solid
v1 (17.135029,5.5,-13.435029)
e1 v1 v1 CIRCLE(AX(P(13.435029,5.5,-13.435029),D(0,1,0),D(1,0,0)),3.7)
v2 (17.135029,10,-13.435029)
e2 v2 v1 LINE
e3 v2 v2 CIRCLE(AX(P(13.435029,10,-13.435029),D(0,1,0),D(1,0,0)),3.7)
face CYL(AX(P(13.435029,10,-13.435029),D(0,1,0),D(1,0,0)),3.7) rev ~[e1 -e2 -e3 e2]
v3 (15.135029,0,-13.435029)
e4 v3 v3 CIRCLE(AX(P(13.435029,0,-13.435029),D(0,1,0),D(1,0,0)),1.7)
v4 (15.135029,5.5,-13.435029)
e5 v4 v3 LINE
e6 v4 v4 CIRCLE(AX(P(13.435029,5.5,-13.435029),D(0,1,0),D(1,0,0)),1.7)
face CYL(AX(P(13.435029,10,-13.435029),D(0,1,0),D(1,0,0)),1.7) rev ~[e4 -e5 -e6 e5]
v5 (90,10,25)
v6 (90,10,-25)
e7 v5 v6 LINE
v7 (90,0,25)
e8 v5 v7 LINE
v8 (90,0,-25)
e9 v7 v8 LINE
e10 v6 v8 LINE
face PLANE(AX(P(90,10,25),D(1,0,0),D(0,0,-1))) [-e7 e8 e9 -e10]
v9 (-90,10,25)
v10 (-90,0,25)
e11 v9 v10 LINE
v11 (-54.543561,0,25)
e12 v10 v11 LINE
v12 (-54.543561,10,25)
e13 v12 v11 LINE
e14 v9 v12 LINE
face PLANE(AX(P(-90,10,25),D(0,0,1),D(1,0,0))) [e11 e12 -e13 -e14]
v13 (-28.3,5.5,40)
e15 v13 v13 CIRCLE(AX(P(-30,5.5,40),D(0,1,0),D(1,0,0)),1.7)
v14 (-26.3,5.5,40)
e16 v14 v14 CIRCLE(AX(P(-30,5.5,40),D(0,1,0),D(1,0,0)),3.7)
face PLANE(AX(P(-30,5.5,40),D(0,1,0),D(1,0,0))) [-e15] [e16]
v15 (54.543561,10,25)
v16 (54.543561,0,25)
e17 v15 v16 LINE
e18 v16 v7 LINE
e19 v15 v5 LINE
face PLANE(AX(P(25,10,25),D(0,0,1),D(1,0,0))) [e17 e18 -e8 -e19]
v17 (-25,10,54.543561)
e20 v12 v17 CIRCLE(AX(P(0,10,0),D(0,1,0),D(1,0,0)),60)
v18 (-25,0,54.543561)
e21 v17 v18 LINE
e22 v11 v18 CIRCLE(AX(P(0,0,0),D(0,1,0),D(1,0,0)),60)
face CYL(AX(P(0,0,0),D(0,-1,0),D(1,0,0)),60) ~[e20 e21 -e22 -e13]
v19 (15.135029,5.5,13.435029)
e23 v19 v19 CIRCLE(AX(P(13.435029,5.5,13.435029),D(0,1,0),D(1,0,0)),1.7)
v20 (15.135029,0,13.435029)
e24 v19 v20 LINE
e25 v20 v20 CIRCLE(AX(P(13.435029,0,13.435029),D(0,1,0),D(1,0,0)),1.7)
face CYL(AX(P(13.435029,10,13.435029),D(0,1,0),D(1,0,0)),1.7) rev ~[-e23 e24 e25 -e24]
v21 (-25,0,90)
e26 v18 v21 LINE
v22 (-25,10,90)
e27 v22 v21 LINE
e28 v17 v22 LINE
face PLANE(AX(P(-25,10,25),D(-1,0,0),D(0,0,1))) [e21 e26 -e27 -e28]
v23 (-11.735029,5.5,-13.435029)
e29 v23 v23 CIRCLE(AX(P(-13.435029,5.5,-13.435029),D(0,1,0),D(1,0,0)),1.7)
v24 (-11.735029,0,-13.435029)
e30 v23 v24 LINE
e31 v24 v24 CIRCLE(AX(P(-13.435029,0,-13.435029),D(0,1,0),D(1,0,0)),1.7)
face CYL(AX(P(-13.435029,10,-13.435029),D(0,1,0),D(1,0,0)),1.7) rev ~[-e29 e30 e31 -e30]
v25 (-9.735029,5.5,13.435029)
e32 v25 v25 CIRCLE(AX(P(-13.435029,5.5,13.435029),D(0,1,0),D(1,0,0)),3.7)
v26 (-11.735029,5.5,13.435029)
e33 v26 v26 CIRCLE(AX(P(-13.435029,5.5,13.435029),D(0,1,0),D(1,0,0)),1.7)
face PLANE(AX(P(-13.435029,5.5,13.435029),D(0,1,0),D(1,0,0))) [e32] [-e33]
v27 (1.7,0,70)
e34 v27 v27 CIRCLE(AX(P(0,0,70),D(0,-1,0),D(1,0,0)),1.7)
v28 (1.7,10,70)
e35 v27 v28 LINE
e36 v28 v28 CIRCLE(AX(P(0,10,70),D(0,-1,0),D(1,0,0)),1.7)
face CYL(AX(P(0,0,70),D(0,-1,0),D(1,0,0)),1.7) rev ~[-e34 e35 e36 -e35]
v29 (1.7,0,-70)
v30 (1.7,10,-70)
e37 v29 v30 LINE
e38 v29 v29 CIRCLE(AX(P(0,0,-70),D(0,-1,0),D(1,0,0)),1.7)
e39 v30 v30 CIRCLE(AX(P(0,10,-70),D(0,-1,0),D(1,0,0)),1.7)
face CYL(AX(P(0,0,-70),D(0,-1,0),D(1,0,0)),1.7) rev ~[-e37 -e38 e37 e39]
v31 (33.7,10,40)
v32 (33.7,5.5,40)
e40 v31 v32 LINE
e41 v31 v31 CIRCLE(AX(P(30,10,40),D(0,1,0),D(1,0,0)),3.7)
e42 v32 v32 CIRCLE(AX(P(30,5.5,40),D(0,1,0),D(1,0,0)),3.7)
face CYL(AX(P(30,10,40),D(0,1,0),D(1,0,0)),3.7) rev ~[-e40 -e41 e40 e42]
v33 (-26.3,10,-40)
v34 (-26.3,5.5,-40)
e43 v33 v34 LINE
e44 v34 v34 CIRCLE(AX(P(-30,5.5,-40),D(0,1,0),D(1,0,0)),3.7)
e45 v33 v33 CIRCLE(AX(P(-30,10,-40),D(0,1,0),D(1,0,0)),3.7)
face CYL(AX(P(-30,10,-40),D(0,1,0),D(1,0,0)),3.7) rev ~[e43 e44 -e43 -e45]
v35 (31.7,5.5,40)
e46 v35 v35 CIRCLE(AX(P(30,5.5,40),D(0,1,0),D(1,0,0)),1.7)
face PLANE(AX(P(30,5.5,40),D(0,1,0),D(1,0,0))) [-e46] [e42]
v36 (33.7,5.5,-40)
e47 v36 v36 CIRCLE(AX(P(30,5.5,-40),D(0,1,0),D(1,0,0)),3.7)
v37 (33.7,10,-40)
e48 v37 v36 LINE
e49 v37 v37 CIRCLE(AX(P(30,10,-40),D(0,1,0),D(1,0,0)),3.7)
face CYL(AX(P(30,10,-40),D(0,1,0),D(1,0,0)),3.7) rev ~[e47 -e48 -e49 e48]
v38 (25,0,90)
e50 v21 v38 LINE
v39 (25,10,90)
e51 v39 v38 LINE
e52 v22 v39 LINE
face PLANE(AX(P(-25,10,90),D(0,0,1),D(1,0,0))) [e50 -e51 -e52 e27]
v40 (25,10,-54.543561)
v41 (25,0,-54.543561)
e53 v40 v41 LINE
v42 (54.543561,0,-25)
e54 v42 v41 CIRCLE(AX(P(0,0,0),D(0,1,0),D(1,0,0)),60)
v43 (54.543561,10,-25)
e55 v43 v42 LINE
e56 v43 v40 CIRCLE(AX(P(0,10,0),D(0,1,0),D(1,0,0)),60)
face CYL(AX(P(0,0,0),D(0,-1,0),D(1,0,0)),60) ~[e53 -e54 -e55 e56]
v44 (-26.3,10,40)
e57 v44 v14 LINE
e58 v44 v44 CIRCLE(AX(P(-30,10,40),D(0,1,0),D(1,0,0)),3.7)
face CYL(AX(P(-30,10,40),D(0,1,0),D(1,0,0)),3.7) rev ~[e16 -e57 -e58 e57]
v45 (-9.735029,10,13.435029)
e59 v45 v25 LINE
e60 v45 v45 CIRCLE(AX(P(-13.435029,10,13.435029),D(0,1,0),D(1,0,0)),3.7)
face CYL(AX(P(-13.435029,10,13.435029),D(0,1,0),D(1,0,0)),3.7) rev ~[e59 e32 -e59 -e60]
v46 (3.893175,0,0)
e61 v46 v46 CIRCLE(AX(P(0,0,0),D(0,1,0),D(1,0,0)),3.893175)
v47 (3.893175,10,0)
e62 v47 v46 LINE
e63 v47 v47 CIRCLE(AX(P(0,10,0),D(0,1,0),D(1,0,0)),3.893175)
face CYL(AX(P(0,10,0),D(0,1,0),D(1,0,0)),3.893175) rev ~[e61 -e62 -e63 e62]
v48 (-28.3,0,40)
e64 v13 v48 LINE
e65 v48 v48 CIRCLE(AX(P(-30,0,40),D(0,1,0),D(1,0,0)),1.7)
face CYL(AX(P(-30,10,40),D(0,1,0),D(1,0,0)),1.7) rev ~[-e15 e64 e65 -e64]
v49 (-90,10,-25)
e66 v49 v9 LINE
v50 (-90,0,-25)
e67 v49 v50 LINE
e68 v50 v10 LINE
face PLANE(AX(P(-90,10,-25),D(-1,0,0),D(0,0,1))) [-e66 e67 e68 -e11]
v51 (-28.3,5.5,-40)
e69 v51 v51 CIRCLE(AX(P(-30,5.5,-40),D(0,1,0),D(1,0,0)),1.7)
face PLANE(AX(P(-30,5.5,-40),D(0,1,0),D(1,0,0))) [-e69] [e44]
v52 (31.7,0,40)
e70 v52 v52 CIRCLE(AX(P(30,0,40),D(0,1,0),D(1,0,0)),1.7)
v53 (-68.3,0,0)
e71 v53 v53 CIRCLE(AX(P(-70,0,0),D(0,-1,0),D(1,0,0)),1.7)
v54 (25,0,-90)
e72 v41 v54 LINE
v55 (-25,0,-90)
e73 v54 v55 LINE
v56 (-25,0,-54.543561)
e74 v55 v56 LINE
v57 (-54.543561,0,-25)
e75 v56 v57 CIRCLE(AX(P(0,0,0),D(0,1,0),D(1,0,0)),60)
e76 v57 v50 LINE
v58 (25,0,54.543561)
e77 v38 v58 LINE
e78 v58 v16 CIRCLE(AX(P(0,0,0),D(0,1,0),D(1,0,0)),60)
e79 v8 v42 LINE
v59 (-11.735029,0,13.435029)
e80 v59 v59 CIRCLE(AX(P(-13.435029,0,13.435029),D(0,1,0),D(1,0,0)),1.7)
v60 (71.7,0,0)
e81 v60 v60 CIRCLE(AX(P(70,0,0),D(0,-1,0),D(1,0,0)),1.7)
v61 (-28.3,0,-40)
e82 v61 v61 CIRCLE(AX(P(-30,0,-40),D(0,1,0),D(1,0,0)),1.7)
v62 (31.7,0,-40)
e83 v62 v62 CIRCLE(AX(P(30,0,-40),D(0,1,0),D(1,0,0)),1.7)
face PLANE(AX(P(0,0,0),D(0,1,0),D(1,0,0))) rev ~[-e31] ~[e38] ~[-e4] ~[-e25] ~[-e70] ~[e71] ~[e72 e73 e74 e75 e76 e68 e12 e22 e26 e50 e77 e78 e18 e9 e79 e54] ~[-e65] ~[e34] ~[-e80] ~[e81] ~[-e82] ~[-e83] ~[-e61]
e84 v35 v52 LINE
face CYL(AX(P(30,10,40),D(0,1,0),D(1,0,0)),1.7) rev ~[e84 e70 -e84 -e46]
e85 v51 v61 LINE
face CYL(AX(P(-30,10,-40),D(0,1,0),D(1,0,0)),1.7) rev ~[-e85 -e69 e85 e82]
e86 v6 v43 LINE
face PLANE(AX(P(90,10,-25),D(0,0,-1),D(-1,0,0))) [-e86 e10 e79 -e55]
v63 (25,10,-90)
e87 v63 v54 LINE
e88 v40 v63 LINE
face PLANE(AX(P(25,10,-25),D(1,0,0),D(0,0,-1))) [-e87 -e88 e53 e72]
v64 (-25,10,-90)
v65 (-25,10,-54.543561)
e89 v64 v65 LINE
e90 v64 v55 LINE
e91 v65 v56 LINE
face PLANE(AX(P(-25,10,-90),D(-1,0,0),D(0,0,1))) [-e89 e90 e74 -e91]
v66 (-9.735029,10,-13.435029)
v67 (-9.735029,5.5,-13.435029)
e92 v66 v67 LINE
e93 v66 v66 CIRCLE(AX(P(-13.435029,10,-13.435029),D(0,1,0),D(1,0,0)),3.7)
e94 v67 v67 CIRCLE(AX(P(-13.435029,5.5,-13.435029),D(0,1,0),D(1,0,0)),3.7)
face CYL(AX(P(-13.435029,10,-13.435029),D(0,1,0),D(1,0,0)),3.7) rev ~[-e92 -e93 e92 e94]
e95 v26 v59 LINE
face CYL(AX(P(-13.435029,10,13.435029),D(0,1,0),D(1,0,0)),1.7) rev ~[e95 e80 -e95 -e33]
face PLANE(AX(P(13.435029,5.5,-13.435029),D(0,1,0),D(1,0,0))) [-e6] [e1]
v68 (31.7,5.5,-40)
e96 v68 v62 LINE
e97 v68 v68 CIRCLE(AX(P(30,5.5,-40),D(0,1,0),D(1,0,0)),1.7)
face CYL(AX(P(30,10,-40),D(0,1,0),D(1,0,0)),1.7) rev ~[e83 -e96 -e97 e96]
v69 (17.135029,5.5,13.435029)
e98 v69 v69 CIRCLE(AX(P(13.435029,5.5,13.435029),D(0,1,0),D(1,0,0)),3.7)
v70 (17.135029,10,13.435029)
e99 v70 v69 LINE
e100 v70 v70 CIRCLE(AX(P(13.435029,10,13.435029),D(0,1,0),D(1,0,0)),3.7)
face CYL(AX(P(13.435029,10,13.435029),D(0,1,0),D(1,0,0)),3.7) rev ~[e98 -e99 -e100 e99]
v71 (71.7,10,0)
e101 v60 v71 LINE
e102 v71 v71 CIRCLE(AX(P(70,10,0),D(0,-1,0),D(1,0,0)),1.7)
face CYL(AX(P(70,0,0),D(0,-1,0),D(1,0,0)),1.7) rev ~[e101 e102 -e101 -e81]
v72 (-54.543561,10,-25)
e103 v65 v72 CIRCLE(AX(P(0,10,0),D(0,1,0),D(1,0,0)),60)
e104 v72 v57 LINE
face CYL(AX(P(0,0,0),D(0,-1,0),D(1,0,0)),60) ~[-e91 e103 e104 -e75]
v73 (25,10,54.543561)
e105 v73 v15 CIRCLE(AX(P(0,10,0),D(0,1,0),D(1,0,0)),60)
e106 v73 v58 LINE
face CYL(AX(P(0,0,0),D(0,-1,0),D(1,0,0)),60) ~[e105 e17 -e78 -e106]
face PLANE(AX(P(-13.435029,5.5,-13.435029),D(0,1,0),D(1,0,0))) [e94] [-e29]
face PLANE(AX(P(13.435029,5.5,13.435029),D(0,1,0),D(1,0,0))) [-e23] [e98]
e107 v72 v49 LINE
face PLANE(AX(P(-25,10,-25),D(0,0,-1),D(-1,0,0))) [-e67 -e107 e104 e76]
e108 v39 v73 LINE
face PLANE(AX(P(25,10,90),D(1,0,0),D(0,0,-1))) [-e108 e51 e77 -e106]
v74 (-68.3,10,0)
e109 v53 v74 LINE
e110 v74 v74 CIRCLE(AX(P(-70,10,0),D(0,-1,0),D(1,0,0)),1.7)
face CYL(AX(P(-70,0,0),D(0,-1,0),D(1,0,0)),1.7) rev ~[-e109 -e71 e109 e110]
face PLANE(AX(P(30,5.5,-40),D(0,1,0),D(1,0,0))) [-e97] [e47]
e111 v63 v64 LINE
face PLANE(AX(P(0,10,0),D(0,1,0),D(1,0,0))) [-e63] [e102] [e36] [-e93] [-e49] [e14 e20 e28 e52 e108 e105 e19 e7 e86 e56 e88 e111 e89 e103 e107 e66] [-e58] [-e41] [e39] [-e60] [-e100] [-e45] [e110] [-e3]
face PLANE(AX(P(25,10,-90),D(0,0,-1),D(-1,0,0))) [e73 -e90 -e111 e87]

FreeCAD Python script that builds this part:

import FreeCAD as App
import Part
import Sketcher
from FreeCAD import Vector
Q = App.Units.Quantity


def add_polygon(sketch, points):
    """Adds a closed chain of lines whose ends are joined by coincident constraints."""
    first, n = sketch.GeometryCount, len(points)
    for a, b in zip(points, points[1:] + points[:1]):
        sketch.addGeometry(Part.LineSegment(App.Vector(*a, 0), App.Vector(*b, 0)), False)
    for i in range(n):
        sketch.addConstraint(Sketcher.Constraint("Coincident", first + i, 2, first + (i + 1) % n, 1))

doc = App.newDocument("Part")
params = doc.addObject("Spreadsheet::Sheet", "Params")
for row, (alias, value) in enumerate([
    ("sketch1_diameter", "120 mm"),
    ("pad1_length", "10 mm"),
    ("sketch2_diameter", "3.4 mm"),
    ("pocket1_length", "10 mm"),
    ("sketch3_diameter", "3.4 mm"),
    ("pocket2_length", "10 mm"),
    ("sketch4_diameter", "7.4 mm"),
    ("pocket3_length", "4.5 mm"),
    ("sketch5_diameter", "7.4 mm"),
    ("sketch5_width", "50 mm"),
    ("sketch5_width2", "65 mm"),
    ("pad2_length", "10 mm"),
    ("sketch6_diameter", "3.4 mm"),
    ("pocket4_length", "10 mm"),
], start=1):
    params.set(f"A{row}", alias)
    params.set(f"B{row}", "=" + value)
    params.setAlias(f"B{row}", alias)

body = doc.addObject("PartDesign::Body", "Body")

# Sketch on XZ plane
sketch1 = body.newObject("Sketcher::SketchObject", "Sketch")
sketch1.AttachmentSupport = (doc.getObject("XZ_Plane"), [""])
sketch1.MapMode = "FlatFace"
sketch1.addGeometry(Part.Circle(Vector(0, 0, 0), Vector(0, 0, 1), 60), False)
sketch1.addConstraint([
    Sketcher.Constraint("Coincident", 0, 3, -1, 1),
    Sketcher.Constraint("Diameter", 0, Q("120 mm")),
])
sketch1.setExpression("Constraints[1]", "Params.sketch1_diameter")
pad1 = body.newObject("PartDesign::Pad", "Pad")
pad1.Profile = sketch1
pad1.setExpression("Length", "Params.pad1_length")
pad1.Reversed = True

# Sketch on XZ plane
sketch2 = body.newObject("Sketcher::SketchObject", "Sketch001")
sketch2.AttachmentSupport = (doc.getObject("XZ_Plane"), [""])
sketch2.MapMode = "FlatFace"
sketch2.AttachmentOffset = App.Placement(Vector(0, 0, -10), App.Rotation())
sketch2.addGeometry([
    Part.Circle(Vector(-13.4, -13.4, 0), Vector(0, 0, 1), 1.7),  # 0
    Part.Circle(Vector(0, 0, 0), Vector(0, 0, 1), 3.9),  # 1
    Part.Circle(Vector(13.4, -13.4, 0), Vector(0, 0, 1), 1.7),  # 2
    Part.Circle(Vector(13.4, 13.4, 0), Vector(0, 0, 1), 1.7),  # 3
    Part.Circle(Vector(-13.4, 13.4, 0), Vector(0, 0, 1), 1.7),  # 4
], False)
sketch2.addConstraint([
    Sketcher.Constraint("Coincident", 1, 3, -1, 1),
    Sketcher.Constraint("Equal", 0, 2),
    Sketcher.Constraint("Equal", 2, 3),
    Sketcher.Constraint("Equal", 3, 4),
    Sketcher.Constraint("Symmetric", 0, 3, 3, 3, -1, 1),
    Sketcher.Constraint("Symmetric", 2, 3, 4, 3, -1, 1),
    Sketcher.Constraint("Symmetric", 0, 3, 2, 3, -2),
    Sketcher.Constraint("Diameter", 0, Q("3.4 mm")),
    Sketcher.Constraint("Diameter", 1, Q("7.851147 mm")),
    Sketcher.Constraint("DistanceX", 0, 3, -1, 1, Q("13.435029 mm")),
    Sketcher.Constraint("DistanceY", 0, 3, -1, 1, Q("13.435029 mm")),
])
sketch2.setExpression("Constraints[7]", "Params.sketch2_diameter")
pocket1 = body.newObject("PartDesign::Pocket", "Pocket")
pocket1.Profile = sketch2
pocket1.setExpression("Length", "Params.pocket1_length")
pocket1.Reversed = True

# Sketch on XZ plane
sketch3 = body.newObject("Sketcher::SketchObject", "Sketch002")
sketch3.AttachmentSupport = (doc.getObject("XZ_Plane"), [""])
sketch3.MapMode = "FlatFace"
sketch3.AttachmentOffset = App.Placement(Vector(0, 0, -10), App.Rotation())
sketch3.addGeometry([
    Part.Circle(Vector(-30, -40, 0), Vector(0, 0, 1), 1.7),
    Part.Circle(Vector(30, -40, 0), Vector(0, 0, 1), 1.7),
    Part.Circle(Vector(-30, 40, 0), Vector(0, 0, 1), 1.7),
    Part.Circle(Vector(30, 40, 0), Vector(0, 0, 1), 1.7),
], False)
sketch3.addConstraint([
    Sketcher.Constraint("Equal", 0, 1),
    Sketcher.Constraint("Equal", 1, 2),
    Sketcher.Constraint("Equal", 2, 3),
    Sketcher.Constraint("Symmetric", 1, 3, 2, 3, -1, 1),
    Sketcher.Constraint("Symmetric", 0, 3, 3, 3, -1, 1),
    Sketcher.Constraint("Symmetric", 0, 3, 1, 3, -2),
    Sketcher.Constraint("Diameter", 0, Q("3.4 mm")),
    Sketcher.Constraint("DistanceX", 0, 3, -1, 1, Q("30 mm")),
    Sketcher.Constraint("DistanceY", 0, 3, -1, 1, Q("40 mm")),
])
sketch3.setExpression("Constraints[6]", "Params.sketch3_diameter")
pocket2 = body.newObject("PartDesign::Pocket", "Pocket001")
pocket2.Profile = sketch3
pocket2.setExpression("Length", "Params.pocket2_length")
pocket2.Reversed = True

# Sketch on XZ plane
sketch4 = body.newObject("Sketcher::SketchObject", "Sketch003")
sketch4.AttachmentSupport = (doc.getObject("XZ_Plane"), [""])
sketch4.MapMode = "FlatFace"
sketch4.AttachmentOffset = App.Placement(Vector(0, 0, -10), App.Rotation())
sketch4.addGeometry([
    Part.Circle(Vector(-13.4, -13.4, 0), Vector(0, 0, 1), 3.7),  # 0
    Part.Circle(Vector(13.4, -13.4, 0), Vector(0, 0, 1), 3.7),  # 1
    Part.Circle(Vector(13.4, 13.4, 0), Vector(0, 0, 1), 3.7),  # 2
    Part.Circle(Vector(-13.4, 13.4, 0), Vector(0, 0, 1), 3.7),  # 3
    Part.Circle(Vector(-30, -40, 0), Vector(0, 0, 1), 3.7),  # 4
    Part.Circle(Vector(30, -40, 0), Vector(0, 0, 1), 3.7),  # 5
    Part.Circle(Vector(-30, 40, 0), Vector(0, 0, 1), 3.7),  # 6
    Part.Circle(Vector(30, 40, 0), Vector(0, 0, 1), 3.7),  # 7
], False)
sketch4.addConstraint([
    Sketcher.Constraint("Equal", 0, 1),
    Sketcher.Constraint("Equal", 1, 2),
    Sketcher.Constraint("Equal", 2, 3),
    Sketcher.Constraint("Equal", 3, 4),
    Sketcher.Constraint("Equal", 4, 5),
    Sketcher.Constraint("Equal", 5, 6),
    Sketcher.Constraint("Equal", 6, 7),
    Sketcher.Constraint("Symmetric", 0, 3, 2, 3, -1, 1),
    Sketcher.Constraint("Symmetric", 1, 3, 3, 3, -1, 1),
    Sketcher.Constraint("Symmetric", 5, 3, 6, 3, -1, 1),
    Sketcher.Constraint("Symmetric", 4, 3, 7, 3, -1, 1),
    Sketcher.Constraint("Symmetric", 0, 3, 1, 3, -2),
    Sketcher.Constraint("Symmetric", 4, 3, 5, 3, -2),
    Sketcher.Constraint("Diameter", 0, Q("7.4 mm")),
    Sketcher.Constraint("DistanceX", 4, 3, -1, 1, Q("30 mm")),
    Sketcher.Constraint("DistanceY", 4, 3, -1, 1, Q("40 mm")),
    Sketcher.Constraint("DistanceX", 0, 3, -1, 1, Q("13.435029 mm")),
    Sketcher.Constraint("DistanceY", 0, 3, -1, 1, Q("13.435029 mm")),
])
sketch4.setExpression("Constraints[13]", "Params.sketch4_diameter")
pocket3 = body.newObject("PartDesign::Pocket", "Pocket002")
pocket3.Profile = sketch4
pocket3.setExpression("Length", "Params.pocket3_length")
pocket3.Reversed = True

# Sketch on XZ plane
sketch5 = body.newObject("Sketcher::SketchObject", "Sketch004")
sketch5.AttachmentSupport = (doc.getObject("XZ_Plane"), [""])
sketch5.MapMode = "FlatFace"
sketch5.AttachmentOffset = App.Placement(Vector(0, 0, -10), App.Rotation())
add_polygon(sketch5, [(25, -25), (25, -90), (-25, -90), (-25, -25), (-90, -25), (-90, 25), (-25, 25), (-25, 90), (25, 90), (25, 25), (90, 25), (90, -25)])  # lines 0-11
sketch5.addGeometry(Part.Circle(Vector(-13.4, 13.4, 0), Vector(0, 0, 1), 3.7), False)  # 12
sketch5.addGeometry(Part.Circle(Vector(13.4, 13.4, 0), Vector(0, 0, 1), 3.7), False)  # 13
sketch5.addGeometry(Part.Circle(Vector(-13.4, -13.4, 0), Vector(0, 0, 1), 3.7), False)  # 14
sketch5.addGeometry(Part.Circle(Vector(0, 0, 0), Vector(0, 0, 1), 3.9), False)  # 15
sketch5.addGeometry(Part.Circle(Vector(13.4, -13.4, 0), Vector(0, 0, 1), 3.7), False)  # 16
sketch5.addConstraint([
    Sketcher.Constraint("Vertical", 0),
    Sketcher.Constraint("Horizontal", 1),
    Sketcher.Constraint("Vertical", 2),
    Sketcher.Constraint("Horizontal", 3),
    Sketcher.Constraint("Vertical", 4),
    Sketcher.Constraint("Horizontal", 5),
    Sketcher.Constraint("Vertical", 6),
    Sketcher.Constraint("Horizontal", 7),
    Sketcher.Constraint("Vertical", 8),
    Sketcher.Constraint("Horizontal", 9),
    Sketcher.Constraint("Vertical", 10),
    Sketcher.Constraint("Horizontal", 11),
    Sketcher.Constraint("Coincident", 15, 3, -1, 1),
    Sketcher.Constraint("Equal", 12, 13),
    Sketcher.Constraint("Equal", 13, 14),
    Sketcher.Constraint("Equal", 14, 16),
    Sketcher.Constraint("Symmetric", 13, 3, 14, 3, -1, 1),
    Sketcher.Constraint("Symmetric", 12, 3, 16, 3, -1, 1),
    Sketcher.Constraint("Symmetric", 0, 2, 6, 2, -1, 1),
    Sketcher.Constraint("Symmetric", 2, 2, 8, 2, -1, 1),
    Sketcher.Constraint("Symmetric", 4, 2, 10, 2, -1, 1),
    Sketcher.Constraint("Symmetric", 12, 3, 13, 3, -2),
    Sketcher.Constraint("Symmetric", 5, 2, 8, 2, -2),
    Sketcher.Constraint("Equal", 11, 0),
    Sketcher.Constraint("Equal", 7, 4),
    Sketcher.Constraint("Diameter", 12, Q("7.4 mm")),
    Sketcher.Constraint("DistanceX", 1, 2, 1, 1, Q("50 mm")),
    Sketcher.Constraint("DistanceX", 3, 2, 3, 1, Q("65 mm")),
    Sketcher.Constraint("Diameter", 15, Q("7.786351 mm")),
    Sketcher.Constraint("DistanceX", 12, 3, -1, 1, Q("13.435029 mm")),
    Sketcher.Constraint("DistanceY", -1, 1, 12, 3, Q("13.435029 mm")),
])
sketch5.setExpression("Constraints[37]", "Params.sketch5_diameter")
sketch5.setExpression("Constraints[38]", "Params.sketch5_width")
sketch5.setExpression("Constraints[39]", "Params.sketch5_width2")
pad2 = body.newObject("PartDesign::Pad", "Pad001")
pad2.Profile = sketch5
pad2.setExpression("Length", "Params.pad2_length")

# Sketch on XZ plane
sketch6 = body.newObject("Sketcher::SketchObject", "Sketch005")
sketch6.AttachmentSupport = (doc.getObject("XZ_Plane"), [""])
sketch6.MapMode = "FlatFace"
sketch6.addGeometry([
    Part.Circle(Vector(0, -70, 0), Vector(0, 0, 1), 1.7),
    Part.Circle(Vector(-70, 0, 0), Vector(0, 0, 1), 1.7),
    Part.Circle(Vector(0, 70, 0), Vector(0, 0, 1), 1.7),
    Part.Circle(Vector(70, 0, 0), Vector(0, 0, 1), 1.7),
], False)
sketch6.addConstraint([
    Sketcher.Constraint("Equal", 0, 1),
    Sketcher.Constraint("Equal", 1, 2),
    Sketcher.Constraint("Equal", 2, 3),
    Sketcher.Constraint("Symmetric", 0, 3, 2, 3, -1, 1),
    Sketcher.Constraint("Symmetric", 1, 3, 3, 3, -1, 1),
    Sketcher.Constraint("PointOnObject", 0, 3, -2),
    Sketcher.Constraint("PointOnObject", 1, 3, -1),
    Sketcher.Constraint("Diameter", 0, Q("3.4 mm")),
    Sketcher.Constraint("DistanceY", 0, 3, -1, 1, Q("70 mm")),
    Sketcher.Constraint("DistanceX", 1, 3, -1, 1, Q("70 mm")),
])
sketch6.setExpression("Constraints[7]", "Params.sketch6_diameter")
pocket4 = body.newObject("PartDesign::Pocket", "Pocket003")
pocket4.Profile = sketch6
pocket4.setExpression("Length", "Params.pocket4_length")

doc.recompute()
